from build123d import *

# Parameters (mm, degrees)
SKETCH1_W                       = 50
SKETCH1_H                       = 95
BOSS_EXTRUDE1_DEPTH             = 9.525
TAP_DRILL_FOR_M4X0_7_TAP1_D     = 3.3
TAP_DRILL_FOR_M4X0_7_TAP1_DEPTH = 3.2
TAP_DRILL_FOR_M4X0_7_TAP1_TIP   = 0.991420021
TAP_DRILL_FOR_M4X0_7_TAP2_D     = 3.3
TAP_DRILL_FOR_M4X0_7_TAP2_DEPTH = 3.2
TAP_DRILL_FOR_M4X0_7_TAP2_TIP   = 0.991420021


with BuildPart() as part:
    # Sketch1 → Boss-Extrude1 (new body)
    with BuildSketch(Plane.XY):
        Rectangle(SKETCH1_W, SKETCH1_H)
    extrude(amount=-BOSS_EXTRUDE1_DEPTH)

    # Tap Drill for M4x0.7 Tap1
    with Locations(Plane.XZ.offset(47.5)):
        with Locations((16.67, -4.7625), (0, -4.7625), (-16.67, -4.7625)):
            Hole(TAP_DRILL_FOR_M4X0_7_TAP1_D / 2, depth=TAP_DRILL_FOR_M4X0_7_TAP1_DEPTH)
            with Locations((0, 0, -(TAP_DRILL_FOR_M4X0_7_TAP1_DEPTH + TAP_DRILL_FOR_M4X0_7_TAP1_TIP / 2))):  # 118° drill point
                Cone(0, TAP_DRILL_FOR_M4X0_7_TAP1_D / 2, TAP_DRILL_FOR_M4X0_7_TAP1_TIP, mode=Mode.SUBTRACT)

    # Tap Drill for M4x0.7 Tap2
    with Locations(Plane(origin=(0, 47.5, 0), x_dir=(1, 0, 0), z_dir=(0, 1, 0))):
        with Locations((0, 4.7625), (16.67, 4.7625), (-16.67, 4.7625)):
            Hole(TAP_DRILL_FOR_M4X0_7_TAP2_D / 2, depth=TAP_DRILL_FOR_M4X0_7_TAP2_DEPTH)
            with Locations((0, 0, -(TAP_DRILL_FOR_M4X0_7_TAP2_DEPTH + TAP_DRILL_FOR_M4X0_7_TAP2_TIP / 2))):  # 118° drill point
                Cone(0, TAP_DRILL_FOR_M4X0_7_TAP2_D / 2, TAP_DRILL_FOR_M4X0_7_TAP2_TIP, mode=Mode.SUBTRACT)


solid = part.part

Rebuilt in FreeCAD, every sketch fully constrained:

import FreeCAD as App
import Part
import Sketcher


def add_polygon(sketch, points):
    """Adds a closed chain of lines whose ends are joined by coincident constraints."""
    first, n = sketch.GeometryCount, len(points)
    for a, b in zip(points, points[1:] + points[:1]):
        sketch.addGeometry(Part.LineSegment(App.Vector(*a, 0), App.Vector(*b, 0)), False)
    for i in range(n):
        sketch.addConstraint(Sketcher.Constraint("Coincident", first + i, 2, first + (i + 1) % n, 1))

doc = App.newDocument("Part")
params = doc.addObject("Spreadsheet::Sheet", "Params")
for row, (alias, value) in enumerate([
    ("sketch1_width", "50 mm"),
    ("sketch1_height", "95 mm"),
    ("pad1_length", "9.525 mm"),
    ("sketch2_diameter", "3.3 mm"),
    ("hole_diameter", "3.3 mm"),
    ("hole_depth", "3.2 mm"),
    ("sketch3_diameter", "3.3 mm"),
    ("hole2_diameter", "3.3 mm"),
    ("hole2_depth", "3.2 mm"),
], start=1):
    params.set(f"A{row}", alias)
    params.set(f"B{row}", "=" + value)
    params.setAlias(f"B{row}", alias)

body = doc.addObject("PartDesign::Body", "Body")

# Sketch on XY plane
sketch1 = body.newObject("Sketcher::SketchObject", "Sketch")
sketch1.AttachmentSupport = (doc.getObject("XY_Plane"), [""])
sketch1.MapMode = "FlatFace"
add_polygon(sketch1, [(-25, 48), (-25, -48), (25, -48), (25, 48)])  # lines 0-3
sketch1.addConstraint([
    Sketcher.Constraint("Vertical", 0),
    Sketcher.Constraint("Horizontal", 1),
    Sketcher.Constraint("Vertical", 2),
    Sketcher.Constraint("Horizontal", 3),
    Sketcher.Constraint("Symmetric", 0, 2, 2, 2, -1, 1),
    Sketcher.Constraint("DistanceX", 1, 1, 1, 2, 50.0),
    Sketcher.Constraint("DistanceY", 0, 2, 0, 1, 95.0),
])
sketch1.setExpression("Constraints[9]", "Params.sketch1_width")
sketch1.setExpression("Constraints[10]", "Params.sketch1_height")
pad1 = body.newObject("PartDesign::Pad", "Pad")
pad1.Profile = sketch1
pad1.setExpression("Length", "Params.pad1_length")
pad1.Reversed = True

# Sketch on XZ plane
sketch2 = body.newObject("Sketcher::SketchObject", "Sketch001")
sketch2.AttachmentSupport = (doc.getObject("XZ_Plane"), [""])
sketch2.MapMode = "FlatFace"
sketch2.AttachmentOffset = App.Placement(App.Vector(0, 0, 47.5), App.Rotation())
sketch2.addGeometry([
    Part.Circle(App.Vector(16.7, -4.8, 0), App.Vector(0, 0, 1), 1.6),
    Part.Circle(App.Vector(0, -4.8, 0), App.Vector(0, 0, 1), 1.6),
    Part.Circle(App.Vector(-16.7, -4.8, 0), App.Vector(0, 0, 1), 1.6),
], False)
sketch2.addConstraint([
    Sketcher.Constraint("Equal", 0, 1),
    Sketcher.Constraint("Equal", 1, 2),
    Sketcher.Constraint("Symmetric", 0, 3, 2, 3, -2),
    Sketcher.Constraint("PointOnObject", 1, 3, -2),
    Sketcher.Constraint("Horizontal", 0, 3, 1, 3),
    Sketcher.Constraint("Diameter", 0, 3.3),
    Sketcher.Constraint("DistanceX", -1, 1, 0, 3, 16.67),
    Sketcher.Constraint("DistanceY", 0, 3, -1, 1, 4.7625),
])
sketch2.setExpression("Constraints[5]", "Params.sketch2_diameter")
doc.recompute()
hole = body.newObject("PartDesign::Hole", "Hole")
hole.Profile = sketch2
hole.ThreadType = "None"
hole.setExpression("Diameter", "Params.hole_diameter")
hole.DepthType = "Dimension"
hole.setExpression("Depth", "Params.hole_depth")
hole.DrillPoint = "Angled"
hole.DrillPointAngle = 118

# Sketch on XZ plane
sketch3 = body.newObject("Sketcher::SketchObject", "Sketch002")
sketch3.AttachmentSupport = (doc.getObject("XZ_Plane"), [""])
sketch3.MapMode = "FlatFace"
sketch3.AttachmentOffset = App.Placement(App.Vector(0, 0, -47.5), App.Rotation())
sketch3.addGeometry([
    Part.Circle(App.Vector(0, -4.8, 0), App.Vector(0, 0, 1), 1.6),
    Part.Circle(App.Vector(16.7, -4.8, 0), App.Vector(0, 0, 1), 1.6),
    Part.Circle(App.Vector(-16.7, -4.8, 0), App.Vector(0, 0, 1), 1.6),
], False)
sketch3.addConstraint([
    Sketcher.Constraint("Equal", 0, 1),
    Sketcher.Constraint("Equal", 1, 2),
    Sketcher.Constraint("Symmetric", 1, 3, 2, 3, -2),
    Sketcher.Constraint("PointOnObject", 0, 3, -2),
    Sketcher.Constraint("Horizontal", 0, 3, 1, 3),
    Sketcher.Constraint("Diameter", 0, 3.3),
    Sketcher.Constraint("DistanceX", -1, 1, 1, 3, 16.67),
    Sketcher.Constraint("DistanceY", 0, 3, -1, 1, 4.7625),
])
sketch3.setExpression("Constraints[5]", "Params.sketch3_diameter")
doc.recompute()
hole2 = body.newObject("PartDesign::Hole", "Hole001")
hole2.Profile = sketch3
hole2.ThreadType = "None"
hole2.setExpression("Diameter", "Params.hole2_diameter")
hole2.DepthType = "Dimension"
hole2.setExpression("Depth", "Params.hole2_depth")
hole2.DrillPoint = "Angled"
hole2.DrillPointAngle = 118
hole2.Reversed = True

doc.recompute()
